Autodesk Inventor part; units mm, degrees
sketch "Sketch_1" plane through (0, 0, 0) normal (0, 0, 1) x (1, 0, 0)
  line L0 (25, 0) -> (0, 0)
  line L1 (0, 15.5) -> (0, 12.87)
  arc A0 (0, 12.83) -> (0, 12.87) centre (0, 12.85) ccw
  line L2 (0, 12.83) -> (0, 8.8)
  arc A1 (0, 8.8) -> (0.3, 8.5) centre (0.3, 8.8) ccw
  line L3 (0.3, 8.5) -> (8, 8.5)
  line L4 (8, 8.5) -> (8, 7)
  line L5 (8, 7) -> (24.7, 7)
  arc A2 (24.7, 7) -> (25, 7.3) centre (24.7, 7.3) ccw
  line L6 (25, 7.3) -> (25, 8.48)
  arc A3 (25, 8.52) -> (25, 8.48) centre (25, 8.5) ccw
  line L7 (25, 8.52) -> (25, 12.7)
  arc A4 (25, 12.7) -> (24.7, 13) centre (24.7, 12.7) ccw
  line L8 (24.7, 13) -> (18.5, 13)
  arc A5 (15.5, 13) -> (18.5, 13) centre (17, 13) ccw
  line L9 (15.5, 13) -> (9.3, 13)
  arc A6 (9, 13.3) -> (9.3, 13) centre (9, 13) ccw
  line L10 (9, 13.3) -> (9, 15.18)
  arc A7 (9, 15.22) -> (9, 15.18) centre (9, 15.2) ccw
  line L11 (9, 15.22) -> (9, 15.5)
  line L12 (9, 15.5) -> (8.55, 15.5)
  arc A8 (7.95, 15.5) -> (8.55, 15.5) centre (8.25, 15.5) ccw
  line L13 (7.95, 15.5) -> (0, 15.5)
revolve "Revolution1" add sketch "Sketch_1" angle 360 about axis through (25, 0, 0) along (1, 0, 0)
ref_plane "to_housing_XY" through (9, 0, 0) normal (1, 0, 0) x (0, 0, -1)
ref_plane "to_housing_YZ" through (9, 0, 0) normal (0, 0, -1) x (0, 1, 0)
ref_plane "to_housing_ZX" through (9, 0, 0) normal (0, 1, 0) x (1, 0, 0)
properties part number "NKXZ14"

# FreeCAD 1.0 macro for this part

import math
import FreeCAD as App
import Part
import Sketcher

doc = App.newDocument("Part")
params = doc.addObject("Spreadsheet::Sheet", "Params")
for row, (alias, value) in enumerate([
    ("sketch1_radius", "0.3 mm"),
    ("sketch1_radius2", "1.5 mm"),
    ("sketch1_radius3", "0.02 mm"),
    ("sketch1_width", "7.7 mm"),
    ("sketch1_width2", "16.7 mm"),
    ("revolution_angle", "360 deg"),
], start=1):
    params.set(f"A{row}", alias)
    params.set(f"B{row}", "=" + value)
    params.setAlias(f"B{row}", alias)

body = doc.addObject("PartDesign::Body", "Body")

sketch1 = doc.addObject("Sketcher::SketchObject", "Sketch")
body.addObject(sketch1)
sketch1.AttachmentSupport = (doc.XY_Plane, [""])
sketch1.MapMode = "FlatFace"
sketch1.addGeometry(Part.LineSegment(App.Vector(7.95, 15.5, 0), App.Vector(0, 15.5, 0)), False)
sketch1.addGeometry(Part.LineSegment(App.Vector(0, 15.5, 0), App.Vector(0, 12.87, 0)), False)
sketch1.addGeometry(Part.ArcOfCircle(Part.Circle(App.Vector(0, 12.85, 0), App.Vector(0, 0, 1), 0.02), math.radians(-90), math.radians(90)), False)
sketch1.addGeometry(Part.LineSegment(App.Vector(0, 12.83, 0), App.Vector(0, 8.8, 0)), False)
sketch1.addGeometry(Part.ArcOfCircle(Part.Circle(App.Vector(0.3, 8.8, 0), App.Vector(0, 0, 1), 0.3), math.radians(180), math.radians(270)), False)
sketch1.addGeometry(Part.LineSegment(App.Vector(0.3, 8.5, 0), App.Vector(8, 8.5, 0)), False)
sketch1.addGeometry(Part.LineSegment(App.Vector(8, 8.5, 0), App.Vector(8, 7, 0)), False)
sketch1.addGeometry(Part.LineSegment(App.Vector(8, 7, 0), App.Vector(24.7, 7, 0)), False)
sketch1.addGeometry(Part.ArcOfCircle(Part.Circle(App.Vector(24.7, 7.3, 0), App.Vector(0, 0, 1), 0.3), math.radians(-90), math.radians(0)), False)
sketch1.addGeometry(Part.LineSegment(App.Vector(25, 7.3, 0), App.Vector(25, 8.48, 0)), False)
sketch1.addGeometry(Part.ArcOfCircle(Part.Circle(App.Vector(25, 8.5, 0), App.Vector(0, 0, 1), 0.02), math.radians(90), math.radians(270)), False)
sketch1.addGeometry(Part.LineSegment(App.Vector(25, 8.52, 0), App.Vector(25, 12.7, 0)), False)
sketch1.addGeometry(Part.ArcOfCircle(Part.Circle(App.Vector(24.7, 12.7, 0), App.Vector(0, 0, 1), 0.3), math.radians(0), math.radians(90)), False)
sketch1.addGeometry(Part.LineSegment(App.Vector(24.7, 13, 0), App.Vector(18.5, 13, 0)), False)
sketch1.addGeometry(Part.ArcOfCircle(Part.Circle(App.Vector(17, 13, 0), App.Vector(0, 0, 1), 1.5), math.radians(180), math.radians(360)), False)
sketch1.addGeometry(Part.LineSegment(App.Vector(15.5, 13, 0), App.Vector(9.3, 13, 0)), False)
sketch1.addGeometry(Part.ArcOfCircle(Part.Circle(App.Vector(9, 13, 0), App.Vector(0, 0, 1), 0.3), math.radians(90), math.radians(360)), False)
sketch1.addGeometry(Part.LineSegment(App.Vector(9, 13.3, 0), App.Vector(9, 15.18, 0)), False)
sketch1.addGeometry(Part.ArcOfCircle(Part.Circle(App.Vector(9, 15.2, 0), App.Vector(0, 0, 1), 0.02), math.radians(90), math.radians(270)), False)
sketch1.addGeometry(Part.LineSegment(App.Vector(9, 15.22, 0), App.Vector(9, 15.5, 0)), False)
sketch1.addGeometry(Part.LineSegment(App.Vector(9, 15.5, 0), App.Vector(8.55, 15.5, 0)), False)
sketch1.addGeometry(Part.ArcOfCircle(Part.Circle(App.Vector(8.25, 15.5, 0), App.Vector(0, 0, 1), 0.3), math.radians(180), math.radians(360)), False)
sketch1.addConstraint(Sketcher.Constraint("Coincident", 0, 2, 1, 1))
sketch1.addConstraint(Sketcher.Constraint("Coincident", 1, 2, 2, 2))
sketch1.addConstraint(Sketcher.Constraint("Coincident", 2, 1, 3, 1))
sketch1.addConstraint(Sketcher.Constraint("Tangent", 3, 2, 4, 1))
sketch1.addConstraint(Sketcher.Constraint("Tangent", 4, 2, 5, 1))
sketch1.addConstraint(Sketcher.Constraint("Coincident", 5, 2, 6, 1))
sketch1.addConstraint(Sketcher.Constraint("Coincident", 6, 2, 7, 1))
sketch1.addConstraint(Sketcher.Constraint("Tangent", 7, 2, 8, 1))
sketch1.addConstraint(Sketcher.Constraint("Tangent", 8, 2, 9, 1))
sketch1.addConstraint(Sketcher.Constraint("Coincident", 9, 2, 10, 2))
sketch1.addConstraint(Sketcher.Constraint("Coincident", 10, 1, 11, 1))
sketch1.addConstraint(Sketcher.Constraint("Tangent", 11, 2, 12, 1))
sketch1.addConstraint(Sketcher.Constraint("Tangent", 12, 2, 13, 1))
sketch1.addConstraint(Sketcher.Constraint("Coincident", 13, 2, 14, 2))
sketch1.addConstraint(Sketcher.Constraint("Coincident", 14, 1, 15, 1))
sketch1.addConstraint(Sketcher.Constraint("Coincident", 15, 2, 16, 2))
sketch1.addConstraint(Sketcher.Constraint("Coincident", 16, 1, 17, 1))
sketch1.addConstraint(Sketcher.Constraint("Coincident", 17, 2, 18, 2))
sketch1.addConstraint(Sketcher.Constraint("Coincident", 18, 1, 19, 1))
sketch1.addConstraint(Sketcher.Constraint("Coincident", 19, 2, 20, 1))
sketch1.addConstraint(Sketcher.Constraint("Coincident", 20, 2, 21, 2))
sketch1.addConstraint(Sketcher.Constraint("Coincident", 21, 1, 0, 1))
sketch1.addConstraint(Sketcher.Constraint("Horizontal", 0))
sketch1.addConstraint(Sketcher.Constraint("Vertical", 1))
sketch1.addConstraint(Sketcher.Constraint("Vertical", 3))
sketch1.addConstraint(Sketcher.Constraint("Horizontal", 5))
sketch1.addConstraint(Sketcher.Constraint("Vertical", 6))
sketch1.addConstraint(Sketcher.Constraint("Horizontal", 7))
sketch1.addConstraint(Sketcher.Constraint("Vertical", 9))
sketch1.addConstraint(Sketcher.Constraint("Vertical", 11))
sketch1.addConstraint(Sketcher.Constraint("Horizontal", 13))
sketch1.addConstraint(Sketcher.Constraint("Horizontal", 15))
sketch1.addConstraint(Sketcher.Constraint("Vertical", 17))
sketch1.addConstraint(Sketcher.Constraint("Vertical", 19))
sketch1.addConstraint(Sketcher.Constraint("Horizontal", 20))
sketch1.addConstraint(Sketcher.Constraint("Equal", 4, 8))
sketch1.addConstraint(Sketcher.Constraint("Equal", 2, 10))
sketch1.addConstraint(Sketcher.Constraint("Equal", 8, 12))
sketch1.addConstraint(Sketcher.Constraint("Equal", 12, 16))
sketch1.addConstraint(Sketcher.Constraint("Equal", 10, 18))
sketch1.addConstraint(Sketcher.Constraint("Equal", 16, 21))
sketch1.addConstraint(Sketcher.Constraint("PointOnObject", 2, 3, -2))
sketch1.addConstraint(Sketcher.Constraint("PointOnObject", 0, 2, -2))
sketch1.addConstraint(Sketcher.Constraint("PointOnObject", 2, 1, -2))
sketch1.addConstraint(Sketcher.Constraint("Horizontal", 14, 3, 16, 3))
sketch1.addConstraint(Sketcher.Constraint("Horizontal", 21, 3, 0, 2))
sketch1.addConstraint(Sketcher.Constraint("Horizontal", 10, 3, 4, 2))
sketch1.addConstraint(Sketcher.Constraint("Horizontal", 16, 3, 12, 2))
sketch1.addConstraint(Sketcher.Constraint("Horizontal", 13, 2, 14, 1))
sketch1.addConstraint(Sketcher.Constraint("Horizontal", 0, 2, 19, 2))
sketch1.addConstraint(Sketcher.Constraint("Vertical", 8, 3, 12, 3))
sketch1.addConstraint(Sketcher.Constraint("Vertical", 16, 3, 18, 3))
sketch1.addConstraint(Sketcher.Constraint("Vertical", 10, 3, 8, 2))
sketch1.addConstraint(Sketcher.Constraint("Vertical", 18, 3, 16, 1))
sketch1.addConstraint(Sketcher.Constraint("Vertical", 17, 2, 18, 1))
sketch1.addConstraint(Sketcher.Constraint("Equal", 13, 15))
sketch1.addConstraint(Sketcher.Constraint("Radius", 4, 0.3))
sketch1.addConstraint(Sketcher.Constraint("Radius", 14, 1.5))
sketch1.addConstraint(Sketcher.Constraint("Radius", 2, 0.02))
sketch1.addConstraint(Sketcher.Constraint("DistanceX", 5, 1, 5, 2, 7.7))
sketch1.addConstraint(Sketcher.Constraint("DistanceX", 7, 1, 7, 2, 16.7))
sketch1.addConstraint(Sketcher.Constraint("DistanceX", 13, 2, 13, 1, 6.2))
sketch1.addConstraint(Sketcher.Constraint("DistanceY", 6, 2, 6, 1, 1.5))
sketch1.addConstraint(Sketcher.Constraint("DistanceY", -1, 1, 14, 3, 13.0))
sketch1.addConstraint(Sketcher.Constraint("DistanceY", -1, 1, 6, 2, 7.0))
sketch1.addConstraint(Sketcher.Constraint("DistanceY", 5, 2, 21, 3, 7.0))
sketch1.addConstraint(Sketcher.Constraint("DistanceX", 0, 2, 0, 1, 7.95))
sketch1.addConstraint(Sketcher.Constraint("DistanceY", 1, 2, 1, 1, 2.63))
sketch1.addConstraint(Sketcher.Constraint("DistanceY", 17, 1, 17, 2, 1.88))
sketch1.setExpression("Constraints[56]", "Params.sketch1_radius")
sketch1.setExpression("Constraints[57]", "Params.sketch1_radius2")
sketch1.setExpression("Constraints[58]", "Params.sketch1_radius3")
sketch1.setExpression("Constraints[59]", "Params.sketch1_width")
sketch1.setExpression("Constraints[60]", "Params.sketch1_width2")
revolution = doc.addObject("PartDesign::Revolution", "Revolution")
body.addObject(revolution)
revolution.Profile = sketch1
revolution.ReferenceAxis = (sketch1, ["H_Axis"])
revolution.setExpression("Angle", "Params.revolution_angle")

doc.recompute()
